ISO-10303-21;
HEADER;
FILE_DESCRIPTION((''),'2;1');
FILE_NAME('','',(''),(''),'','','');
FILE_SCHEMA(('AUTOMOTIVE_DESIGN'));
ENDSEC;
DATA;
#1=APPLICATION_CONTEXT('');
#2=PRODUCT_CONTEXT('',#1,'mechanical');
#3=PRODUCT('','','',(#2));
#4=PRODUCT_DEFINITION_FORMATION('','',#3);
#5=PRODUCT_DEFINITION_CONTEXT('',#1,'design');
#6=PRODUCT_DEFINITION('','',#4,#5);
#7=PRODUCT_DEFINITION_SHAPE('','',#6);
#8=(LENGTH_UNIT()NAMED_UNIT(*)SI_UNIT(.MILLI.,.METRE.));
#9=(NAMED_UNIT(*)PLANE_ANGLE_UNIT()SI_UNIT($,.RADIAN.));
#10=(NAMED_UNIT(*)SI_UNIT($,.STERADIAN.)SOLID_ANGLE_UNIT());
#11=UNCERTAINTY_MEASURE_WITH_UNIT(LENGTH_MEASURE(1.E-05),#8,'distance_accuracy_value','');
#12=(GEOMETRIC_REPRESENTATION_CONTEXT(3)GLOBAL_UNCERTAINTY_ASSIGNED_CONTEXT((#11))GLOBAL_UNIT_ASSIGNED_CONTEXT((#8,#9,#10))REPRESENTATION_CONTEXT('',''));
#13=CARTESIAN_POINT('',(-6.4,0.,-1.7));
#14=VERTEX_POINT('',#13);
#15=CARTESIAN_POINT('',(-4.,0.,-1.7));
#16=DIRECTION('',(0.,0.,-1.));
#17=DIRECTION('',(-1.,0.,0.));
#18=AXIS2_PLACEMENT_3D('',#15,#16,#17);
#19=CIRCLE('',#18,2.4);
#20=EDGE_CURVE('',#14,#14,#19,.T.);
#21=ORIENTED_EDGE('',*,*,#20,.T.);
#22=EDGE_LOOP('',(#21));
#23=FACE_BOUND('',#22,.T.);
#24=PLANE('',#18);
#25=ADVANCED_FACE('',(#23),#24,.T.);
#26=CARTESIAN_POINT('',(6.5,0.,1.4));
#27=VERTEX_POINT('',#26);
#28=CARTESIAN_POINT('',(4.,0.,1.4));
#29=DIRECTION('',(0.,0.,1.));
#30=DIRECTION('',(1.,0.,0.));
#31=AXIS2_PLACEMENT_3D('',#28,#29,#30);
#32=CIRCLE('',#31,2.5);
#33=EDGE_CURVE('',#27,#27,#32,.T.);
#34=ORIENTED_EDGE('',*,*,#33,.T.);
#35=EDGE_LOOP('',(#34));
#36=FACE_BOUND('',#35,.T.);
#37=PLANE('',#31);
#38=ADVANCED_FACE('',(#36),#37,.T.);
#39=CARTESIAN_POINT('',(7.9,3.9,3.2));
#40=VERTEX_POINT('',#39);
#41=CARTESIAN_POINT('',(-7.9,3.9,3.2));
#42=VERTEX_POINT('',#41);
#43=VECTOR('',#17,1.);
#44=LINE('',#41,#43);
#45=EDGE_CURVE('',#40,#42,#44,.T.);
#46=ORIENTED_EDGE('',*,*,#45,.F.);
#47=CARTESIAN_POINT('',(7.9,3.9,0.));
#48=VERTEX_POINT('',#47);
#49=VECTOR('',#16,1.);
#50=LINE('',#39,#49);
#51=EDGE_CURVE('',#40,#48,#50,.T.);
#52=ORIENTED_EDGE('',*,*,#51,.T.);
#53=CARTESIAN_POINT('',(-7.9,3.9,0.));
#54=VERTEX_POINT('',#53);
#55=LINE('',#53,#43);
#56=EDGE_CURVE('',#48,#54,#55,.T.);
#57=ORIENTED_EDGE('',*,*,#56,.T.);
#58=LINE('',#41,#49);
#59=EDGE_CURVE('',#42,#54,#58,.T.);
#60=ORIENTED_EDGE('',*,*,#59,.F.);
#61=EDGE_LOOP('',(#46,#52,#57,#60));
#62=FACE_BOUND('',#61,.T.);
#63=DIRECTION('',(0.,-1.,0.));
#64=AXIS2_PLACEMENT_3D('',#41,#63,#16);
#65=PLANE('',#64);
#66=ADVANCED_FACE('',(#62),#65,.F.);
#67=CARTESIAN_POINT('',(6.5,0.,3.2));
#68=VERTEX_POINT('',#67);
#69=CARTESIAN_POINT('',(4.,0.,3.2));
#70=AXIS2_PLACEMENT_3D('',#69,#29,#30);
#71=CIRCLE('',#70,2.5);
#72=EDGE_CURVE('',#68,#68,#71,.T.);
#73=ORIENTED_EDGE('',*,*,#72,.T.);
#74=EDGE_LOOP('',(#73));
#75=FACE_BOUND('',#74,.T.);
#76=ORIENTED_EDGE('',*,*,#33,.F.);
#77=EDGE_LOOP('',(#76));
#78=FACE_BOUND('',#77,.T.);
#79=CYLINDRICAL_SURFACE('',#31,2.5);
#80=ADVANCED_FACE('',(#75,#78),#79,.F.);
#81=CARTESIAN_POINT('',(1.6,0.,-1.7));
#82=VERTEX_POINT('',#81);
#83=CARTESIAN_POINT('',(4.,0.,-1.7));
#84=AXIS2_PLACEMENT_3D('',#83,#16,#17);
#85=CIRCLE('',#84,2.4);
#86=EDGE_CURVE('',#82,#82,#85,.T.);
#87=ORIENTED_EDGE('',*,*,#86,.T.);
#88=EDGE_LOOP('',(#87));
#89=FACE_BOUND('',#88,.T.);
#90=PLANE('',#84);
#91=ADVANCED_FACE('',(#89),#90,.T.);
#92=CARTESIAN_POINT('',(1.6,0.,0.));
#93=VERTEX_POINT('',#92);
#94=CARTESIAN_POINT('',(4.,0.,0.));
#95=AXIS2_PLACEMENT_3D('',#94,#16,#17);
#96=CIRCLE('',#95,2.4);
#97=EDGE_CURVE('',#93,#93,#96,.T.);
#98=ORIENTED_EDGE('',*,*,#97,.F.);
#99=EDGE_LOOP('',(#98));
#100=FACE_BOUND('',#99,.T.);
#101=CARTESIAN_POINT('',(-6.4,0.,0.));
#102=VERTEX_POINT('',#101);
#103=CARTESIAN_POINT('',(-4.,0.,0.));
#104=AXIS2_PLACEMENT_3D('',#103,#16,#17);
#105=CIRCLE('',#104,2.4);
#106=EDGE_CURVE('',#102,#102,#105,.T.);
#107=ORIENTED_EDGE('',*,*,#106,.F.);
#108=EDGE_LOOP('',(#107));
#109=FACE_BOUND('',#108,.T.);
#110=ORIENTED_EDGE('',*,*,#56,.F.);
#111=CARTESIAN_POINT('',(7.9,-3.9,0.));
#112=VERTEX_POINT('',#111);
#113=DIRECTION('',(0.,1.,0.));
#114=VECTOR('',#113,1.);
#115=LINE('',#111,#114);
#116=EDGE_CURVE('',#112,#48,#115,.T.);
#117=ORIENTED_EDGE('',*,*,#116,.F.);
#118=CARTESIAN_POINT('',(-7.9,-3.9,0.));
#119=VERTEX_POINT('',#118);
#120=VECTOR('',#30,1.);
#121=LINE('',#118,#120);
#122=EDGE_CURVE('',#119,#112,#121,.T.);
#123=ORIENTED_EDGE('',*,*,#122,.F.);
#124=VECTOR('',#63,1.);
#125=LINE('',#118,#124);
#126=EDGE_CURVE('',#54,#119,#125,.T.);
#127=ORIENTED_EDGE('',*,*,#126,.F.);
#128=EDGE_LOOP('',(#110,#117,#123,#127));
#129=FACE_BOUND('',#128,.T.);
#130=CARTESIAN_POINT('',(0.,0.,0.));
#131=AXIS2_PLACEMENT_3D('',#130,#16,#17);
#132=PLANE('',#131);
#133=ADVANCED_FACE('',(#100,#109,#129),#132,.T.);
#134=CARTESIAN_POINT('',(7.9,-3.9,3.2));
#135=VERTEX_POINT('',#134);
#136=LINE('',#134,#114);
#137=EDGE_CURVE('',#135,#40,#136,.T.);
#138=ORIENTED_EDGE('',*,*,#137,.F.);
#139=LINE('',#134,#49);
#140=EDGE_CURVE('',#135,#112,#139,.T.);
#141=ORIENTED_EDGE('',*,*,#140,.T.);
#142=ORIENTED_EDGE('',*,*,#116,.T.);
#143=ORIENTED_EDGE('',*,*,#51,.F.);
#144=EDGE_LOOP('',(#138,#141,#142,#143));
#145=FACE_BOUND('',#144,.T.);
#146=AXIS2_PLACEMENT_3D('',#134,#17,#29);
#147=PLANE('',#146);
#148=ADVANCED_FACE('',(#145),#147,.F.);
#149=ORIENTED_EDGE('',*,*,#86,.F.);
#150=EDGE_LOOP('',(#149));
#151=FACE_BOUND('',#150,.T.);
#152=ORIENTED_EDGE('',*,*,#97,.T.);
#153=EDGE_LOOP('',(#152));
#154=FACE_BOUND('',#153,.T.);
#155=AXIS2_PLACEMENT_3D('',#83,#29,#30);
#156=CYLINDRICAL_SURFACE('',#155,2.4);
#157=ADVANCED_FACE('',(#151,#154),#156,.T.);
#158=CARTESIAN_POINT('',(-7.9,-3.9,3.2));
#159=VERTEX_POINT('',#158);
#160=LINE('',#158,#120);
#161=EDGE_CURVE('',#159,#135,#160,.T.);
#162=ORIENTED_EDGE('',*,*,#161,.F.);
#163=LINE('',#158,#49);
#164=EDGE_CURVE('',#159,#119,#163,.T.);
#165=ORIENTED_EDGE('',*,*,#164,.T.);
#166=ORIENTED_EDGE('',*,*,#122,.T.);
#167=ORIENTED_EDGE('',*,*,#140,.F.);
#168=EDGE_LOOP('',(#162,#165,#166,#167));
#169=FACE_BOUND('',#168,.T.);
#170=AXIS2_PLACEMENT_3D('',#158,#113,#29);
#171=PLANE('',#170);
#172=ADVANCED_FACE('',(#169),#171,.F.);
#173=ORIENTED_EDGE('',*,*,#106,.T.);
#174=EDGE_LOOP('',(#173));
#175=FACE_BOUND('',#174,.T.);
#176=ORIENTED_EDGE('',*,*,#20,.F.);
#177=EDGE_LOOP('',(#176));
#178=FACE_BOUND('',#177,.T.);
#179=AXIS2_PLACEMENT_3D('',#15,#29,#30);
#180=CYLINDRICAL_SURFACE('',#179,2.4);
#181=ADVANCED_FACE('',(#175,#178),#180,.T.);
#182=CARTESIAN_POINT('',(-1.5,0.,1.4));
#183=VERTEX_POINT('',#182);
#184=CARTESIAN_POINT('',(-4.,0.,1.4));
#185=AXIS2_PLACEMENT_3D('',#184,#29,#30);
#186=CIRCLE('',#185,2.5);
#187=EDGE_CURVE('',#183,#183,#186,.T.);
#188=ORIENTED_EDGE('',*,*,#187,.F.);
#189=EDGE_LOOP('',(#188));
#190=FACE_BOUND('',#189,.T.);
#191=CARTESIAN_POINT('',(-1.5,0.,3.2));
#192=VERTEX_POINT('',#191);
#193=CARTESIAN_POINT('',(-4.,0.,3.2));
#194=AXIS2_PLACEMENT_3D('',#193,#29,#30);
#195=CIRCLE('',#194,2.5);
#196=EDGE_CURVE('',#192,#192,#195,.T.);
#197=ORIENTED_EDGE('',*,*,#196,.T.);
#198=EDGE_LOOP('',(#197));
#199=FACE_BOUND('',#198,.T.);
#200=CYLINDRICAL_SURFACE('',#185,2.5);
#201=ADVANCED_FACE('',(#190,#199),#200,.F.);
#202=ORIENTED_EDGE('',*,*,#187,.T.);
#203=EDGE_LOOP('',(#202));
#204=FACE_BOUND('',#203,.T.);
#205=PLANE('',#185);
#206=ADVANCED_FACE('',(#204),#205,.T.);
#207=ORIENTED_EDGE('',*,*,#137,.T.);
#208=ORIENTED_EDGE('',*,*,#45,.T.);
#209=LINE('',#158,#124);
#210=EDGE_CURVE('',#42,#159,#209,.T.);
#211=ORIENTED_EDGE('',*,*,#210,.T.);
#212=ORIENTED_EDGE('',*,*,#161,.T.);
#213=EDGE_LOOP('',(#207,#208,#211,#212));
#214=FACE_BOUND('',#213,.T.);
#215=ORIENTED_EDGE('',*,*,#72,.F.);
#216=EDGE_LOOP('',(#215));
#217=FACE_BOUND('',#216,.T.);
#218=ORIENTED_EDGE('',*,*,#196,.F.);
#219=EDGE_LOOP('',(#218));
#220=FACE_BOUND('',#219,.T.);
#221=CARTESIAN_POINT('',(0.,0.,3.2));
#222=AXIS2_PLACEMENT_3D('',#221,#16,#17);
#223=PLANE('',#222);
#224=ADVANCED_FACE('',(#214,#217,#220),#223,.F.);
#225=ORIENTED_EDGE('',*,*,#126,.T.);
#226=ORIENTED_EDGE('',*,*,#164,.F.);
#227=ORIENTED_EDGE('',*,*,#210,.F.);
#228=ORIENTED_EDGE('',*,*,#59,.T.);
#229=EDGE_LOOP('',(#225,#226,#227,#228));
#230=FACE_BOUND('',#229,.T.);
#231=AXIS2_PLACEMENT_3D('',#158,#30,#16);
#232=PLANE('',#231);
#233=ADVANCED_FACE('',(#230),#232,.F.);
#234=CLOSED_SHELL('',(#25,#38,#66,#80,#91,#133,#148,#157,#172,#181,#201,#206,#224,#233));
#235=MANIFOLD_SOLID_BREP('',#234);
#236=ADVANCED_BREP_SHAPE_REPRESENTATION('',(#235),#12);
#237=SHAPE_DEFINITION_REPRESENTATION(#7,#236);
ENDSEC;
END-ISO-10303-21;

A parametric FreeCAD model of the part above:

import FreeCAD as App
import Part
import Sketcher

V = App.Vector
Q = App.Units.Quantity


def add_polygon(sketch, points):
    """Adds a closed chain of lines whose ends are joined by coincident constraints."""
    first, n = sketch.GeometryCount, len(points)
    for a, b in zip(points, points[1:] + points[:1]):
        sketch.addGeometry(Part.LineSegment(App.Vector(*a, 0), App.Vector(*b, 0)), False)
    for i in range(n):
        sketch.addConstraint(Sketcher.Constraint("Coincident", first + i, 2, first + (i + 1) % n, 1))

doc = App.newDocument("Part")
body = doc.addObject("PartDesign::Body", "Body")

# Sketch on XY plane
sketch1 = doc.addObject("Sketcher::SketchObject", "Sketch")
body.addObject(sketch1)
sketch1.AttachmentSupport = (doc.XY_Plane, [""])
sketch1.MapMode = "FlatFace"
add_polygon(sketch1, [(-8, 4), (-8, -4), (8, -4), (8, 4)])  # lines 0-3
sketch1.addConstraint([
    Sketcher.Constraint("Vertical", 0),
    Sketcher.Constraint("Horizontal", 1),
    Sketcher.Constraint("Vertical", 2),
    Sketcher.Constraint("Horizontal", 3),
    Sketcher.Constraint("Symmetric", 0, 2, 2, 2, -1, 1),
    Sketcher.Constraint("DistanceX", 1, 1, 1, 2, Q("15.8 mm")),
    Sketcher.Constraint("DistanceY", 0, 2, 0, 1, Q("7.8 mm")),
])
pad1 = doc.addObject("PartDesign::Pad", "Pad")
body.addObject(pad1)
pad1.Profile = sketch1
pad1.Length = 3.2

# Sketch on XY plane
sketch2 = doc.addObject("Sketcher::SketchObject", "Sketch001")
body.addObject(sketch2)
sketch2.AttachmentSupport = (doc.XY_Plane, [""])
sketch2.MapMode = "FlatFace"
sketch2.addGeometry([
    Part.Circle(V(4, 0, 0), V(0, 0, 1), 2.4),
    Part.Circle(V(-4, 0, 0), V(0, 0, 1), 2.4),
], False)
sketch2.addConstraint([
    Sketcher.Constraint("Equal", 0, 1),
    Sketcher.Constraint("Symmetric", 0, 3, 1, 3, -1, 1),
    Sketcher.Constraint("PointOnObject", 0, 3, -1),
    Sketcher.Constraint("Diameter", 0, Q("4.8 mm")),
    Sketcher.Constraint("DistanceX", -1, 1, 0, 3, Q("4 mm")),
])
pad2 = doc.addObject("PartDesign::Pad", "Pad001")
body.addObject(pad2)
pad2.Profile = sketch2
pad2.Length = 1.7
pad2.Reversed = True

# Sketch on XY plane
sketch3 = doc.addObject("Sketcher::SketchObject", "Sketch002")
body.addObject(sketch3)
sketch3.AttachmentSupport = (doc.XY_Plane, [""])
sketch3.MapMode = "FlatFace"
sketch3.AttachmentOffset = App.Placement(V(0, 0, 3.2), App.Rotation())
sketch3.addGeometry([
    Part.Circle(V(-4, 0, 0), V(0, 0, 1), 2.5),
    Part.Circle(V(4, 0, 0), V(0, 0, 1), 2.5),
], False)
sketch3.addConstraint([
    Sketcher.Constraint("Equal", 0, 1),
    Sketcher.Constraint("Symmetric", 0, 3, 1, 3, -1, 1),
    Sketcher.Constraint("PointOnObject", 0, 3, -1),
    Sketcher.Constraint("Diameter", 0, Q("5 mm")),
    Sketcher.Constraint("DistanceX", 0, 3, -1, 1, Q("4 mm")),
])
pocket1 = doc.addObject("PartDesign::Pocket", "Pocket")
body.addObject(pocket1)
pocket1.Profile = sketch3
pocket1.Length = 1.8

doc.recompute()
